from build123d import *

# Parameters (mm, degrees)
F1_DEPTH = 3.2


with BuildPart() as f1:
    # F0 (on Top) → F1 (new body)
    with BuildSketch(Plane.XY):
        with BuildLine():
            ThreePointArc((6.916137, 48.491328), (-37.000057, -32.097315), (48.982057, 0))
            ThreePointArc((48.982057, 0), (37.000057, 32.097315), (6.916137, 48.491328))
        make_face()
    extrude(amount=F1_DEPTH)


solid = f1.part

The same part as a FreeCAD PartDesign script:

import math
import FreeCAD as App
import Part
import Sketcher

V = App.Vector
Q = App.Units.Quantity

doc = App.newDocument("Part")
params = doc.addObject("Spreadsheet::Sheet", "Params")
for row, (alias, value) in enumerate([
    ("pad1_length", "3.2 mm"),
], start=1):
    params.set(f"A{row}", alias)
    params.set(f"B{row}", "=" + value)
    params.setAlias(f"B{row}", alias)

body = doc.addObject("PartDesign::Body", "Body")

# Sketch on XY plane
sketch1 = body.newObject("Sketcher::SketchObject", "Sketch")
sketch1.AttachmentSupport = (doc.getObject("XY_Plane"), [""])
sketch1.MapMode = "FlatFace"
sketch1.addGeometry(Part.ArcOfCircle(Part.Circle(V(0, 0, 0), V(0, 0, 1), 49), math.radians(82), math.radians(360)), False)
sketch1.addGeometry(Part.ArcOfCircle(Part.Circle(V(0, 0, 0), V(0, 0, 1), 49), math.radians(0), math.radians(82)), False)
sketch1.addConstraint(Sketcher.Constraint("Tangent", 0, 1, 1, 2))
sketch1.addConstraint(Sketcher.Constraint("Coincident", 1, 1, 0, 2))
sketch1.addConstraint(Sketcher.Constraint("Coincident", 0, 3, -1, 1))
sketch1.addConstraint(Sketcher.Constraint("PointOnObject", 1, 1, -1))
sketch1.addConstraint(Sketcher.Constraint("Radius", 0, Q("48.982057 mm")))
sketch1.addConstraint(Sketcher.Constraint("DistanceY", -1, 1, 0, 1, Q("48.491328 mm")))
pad1 = body.newObject("PartDesign::Pad", "Pad")
pad1.Profile = sketch1
pad1.setExpression("Length", "Params.pad1_length")

doc.recompute()
